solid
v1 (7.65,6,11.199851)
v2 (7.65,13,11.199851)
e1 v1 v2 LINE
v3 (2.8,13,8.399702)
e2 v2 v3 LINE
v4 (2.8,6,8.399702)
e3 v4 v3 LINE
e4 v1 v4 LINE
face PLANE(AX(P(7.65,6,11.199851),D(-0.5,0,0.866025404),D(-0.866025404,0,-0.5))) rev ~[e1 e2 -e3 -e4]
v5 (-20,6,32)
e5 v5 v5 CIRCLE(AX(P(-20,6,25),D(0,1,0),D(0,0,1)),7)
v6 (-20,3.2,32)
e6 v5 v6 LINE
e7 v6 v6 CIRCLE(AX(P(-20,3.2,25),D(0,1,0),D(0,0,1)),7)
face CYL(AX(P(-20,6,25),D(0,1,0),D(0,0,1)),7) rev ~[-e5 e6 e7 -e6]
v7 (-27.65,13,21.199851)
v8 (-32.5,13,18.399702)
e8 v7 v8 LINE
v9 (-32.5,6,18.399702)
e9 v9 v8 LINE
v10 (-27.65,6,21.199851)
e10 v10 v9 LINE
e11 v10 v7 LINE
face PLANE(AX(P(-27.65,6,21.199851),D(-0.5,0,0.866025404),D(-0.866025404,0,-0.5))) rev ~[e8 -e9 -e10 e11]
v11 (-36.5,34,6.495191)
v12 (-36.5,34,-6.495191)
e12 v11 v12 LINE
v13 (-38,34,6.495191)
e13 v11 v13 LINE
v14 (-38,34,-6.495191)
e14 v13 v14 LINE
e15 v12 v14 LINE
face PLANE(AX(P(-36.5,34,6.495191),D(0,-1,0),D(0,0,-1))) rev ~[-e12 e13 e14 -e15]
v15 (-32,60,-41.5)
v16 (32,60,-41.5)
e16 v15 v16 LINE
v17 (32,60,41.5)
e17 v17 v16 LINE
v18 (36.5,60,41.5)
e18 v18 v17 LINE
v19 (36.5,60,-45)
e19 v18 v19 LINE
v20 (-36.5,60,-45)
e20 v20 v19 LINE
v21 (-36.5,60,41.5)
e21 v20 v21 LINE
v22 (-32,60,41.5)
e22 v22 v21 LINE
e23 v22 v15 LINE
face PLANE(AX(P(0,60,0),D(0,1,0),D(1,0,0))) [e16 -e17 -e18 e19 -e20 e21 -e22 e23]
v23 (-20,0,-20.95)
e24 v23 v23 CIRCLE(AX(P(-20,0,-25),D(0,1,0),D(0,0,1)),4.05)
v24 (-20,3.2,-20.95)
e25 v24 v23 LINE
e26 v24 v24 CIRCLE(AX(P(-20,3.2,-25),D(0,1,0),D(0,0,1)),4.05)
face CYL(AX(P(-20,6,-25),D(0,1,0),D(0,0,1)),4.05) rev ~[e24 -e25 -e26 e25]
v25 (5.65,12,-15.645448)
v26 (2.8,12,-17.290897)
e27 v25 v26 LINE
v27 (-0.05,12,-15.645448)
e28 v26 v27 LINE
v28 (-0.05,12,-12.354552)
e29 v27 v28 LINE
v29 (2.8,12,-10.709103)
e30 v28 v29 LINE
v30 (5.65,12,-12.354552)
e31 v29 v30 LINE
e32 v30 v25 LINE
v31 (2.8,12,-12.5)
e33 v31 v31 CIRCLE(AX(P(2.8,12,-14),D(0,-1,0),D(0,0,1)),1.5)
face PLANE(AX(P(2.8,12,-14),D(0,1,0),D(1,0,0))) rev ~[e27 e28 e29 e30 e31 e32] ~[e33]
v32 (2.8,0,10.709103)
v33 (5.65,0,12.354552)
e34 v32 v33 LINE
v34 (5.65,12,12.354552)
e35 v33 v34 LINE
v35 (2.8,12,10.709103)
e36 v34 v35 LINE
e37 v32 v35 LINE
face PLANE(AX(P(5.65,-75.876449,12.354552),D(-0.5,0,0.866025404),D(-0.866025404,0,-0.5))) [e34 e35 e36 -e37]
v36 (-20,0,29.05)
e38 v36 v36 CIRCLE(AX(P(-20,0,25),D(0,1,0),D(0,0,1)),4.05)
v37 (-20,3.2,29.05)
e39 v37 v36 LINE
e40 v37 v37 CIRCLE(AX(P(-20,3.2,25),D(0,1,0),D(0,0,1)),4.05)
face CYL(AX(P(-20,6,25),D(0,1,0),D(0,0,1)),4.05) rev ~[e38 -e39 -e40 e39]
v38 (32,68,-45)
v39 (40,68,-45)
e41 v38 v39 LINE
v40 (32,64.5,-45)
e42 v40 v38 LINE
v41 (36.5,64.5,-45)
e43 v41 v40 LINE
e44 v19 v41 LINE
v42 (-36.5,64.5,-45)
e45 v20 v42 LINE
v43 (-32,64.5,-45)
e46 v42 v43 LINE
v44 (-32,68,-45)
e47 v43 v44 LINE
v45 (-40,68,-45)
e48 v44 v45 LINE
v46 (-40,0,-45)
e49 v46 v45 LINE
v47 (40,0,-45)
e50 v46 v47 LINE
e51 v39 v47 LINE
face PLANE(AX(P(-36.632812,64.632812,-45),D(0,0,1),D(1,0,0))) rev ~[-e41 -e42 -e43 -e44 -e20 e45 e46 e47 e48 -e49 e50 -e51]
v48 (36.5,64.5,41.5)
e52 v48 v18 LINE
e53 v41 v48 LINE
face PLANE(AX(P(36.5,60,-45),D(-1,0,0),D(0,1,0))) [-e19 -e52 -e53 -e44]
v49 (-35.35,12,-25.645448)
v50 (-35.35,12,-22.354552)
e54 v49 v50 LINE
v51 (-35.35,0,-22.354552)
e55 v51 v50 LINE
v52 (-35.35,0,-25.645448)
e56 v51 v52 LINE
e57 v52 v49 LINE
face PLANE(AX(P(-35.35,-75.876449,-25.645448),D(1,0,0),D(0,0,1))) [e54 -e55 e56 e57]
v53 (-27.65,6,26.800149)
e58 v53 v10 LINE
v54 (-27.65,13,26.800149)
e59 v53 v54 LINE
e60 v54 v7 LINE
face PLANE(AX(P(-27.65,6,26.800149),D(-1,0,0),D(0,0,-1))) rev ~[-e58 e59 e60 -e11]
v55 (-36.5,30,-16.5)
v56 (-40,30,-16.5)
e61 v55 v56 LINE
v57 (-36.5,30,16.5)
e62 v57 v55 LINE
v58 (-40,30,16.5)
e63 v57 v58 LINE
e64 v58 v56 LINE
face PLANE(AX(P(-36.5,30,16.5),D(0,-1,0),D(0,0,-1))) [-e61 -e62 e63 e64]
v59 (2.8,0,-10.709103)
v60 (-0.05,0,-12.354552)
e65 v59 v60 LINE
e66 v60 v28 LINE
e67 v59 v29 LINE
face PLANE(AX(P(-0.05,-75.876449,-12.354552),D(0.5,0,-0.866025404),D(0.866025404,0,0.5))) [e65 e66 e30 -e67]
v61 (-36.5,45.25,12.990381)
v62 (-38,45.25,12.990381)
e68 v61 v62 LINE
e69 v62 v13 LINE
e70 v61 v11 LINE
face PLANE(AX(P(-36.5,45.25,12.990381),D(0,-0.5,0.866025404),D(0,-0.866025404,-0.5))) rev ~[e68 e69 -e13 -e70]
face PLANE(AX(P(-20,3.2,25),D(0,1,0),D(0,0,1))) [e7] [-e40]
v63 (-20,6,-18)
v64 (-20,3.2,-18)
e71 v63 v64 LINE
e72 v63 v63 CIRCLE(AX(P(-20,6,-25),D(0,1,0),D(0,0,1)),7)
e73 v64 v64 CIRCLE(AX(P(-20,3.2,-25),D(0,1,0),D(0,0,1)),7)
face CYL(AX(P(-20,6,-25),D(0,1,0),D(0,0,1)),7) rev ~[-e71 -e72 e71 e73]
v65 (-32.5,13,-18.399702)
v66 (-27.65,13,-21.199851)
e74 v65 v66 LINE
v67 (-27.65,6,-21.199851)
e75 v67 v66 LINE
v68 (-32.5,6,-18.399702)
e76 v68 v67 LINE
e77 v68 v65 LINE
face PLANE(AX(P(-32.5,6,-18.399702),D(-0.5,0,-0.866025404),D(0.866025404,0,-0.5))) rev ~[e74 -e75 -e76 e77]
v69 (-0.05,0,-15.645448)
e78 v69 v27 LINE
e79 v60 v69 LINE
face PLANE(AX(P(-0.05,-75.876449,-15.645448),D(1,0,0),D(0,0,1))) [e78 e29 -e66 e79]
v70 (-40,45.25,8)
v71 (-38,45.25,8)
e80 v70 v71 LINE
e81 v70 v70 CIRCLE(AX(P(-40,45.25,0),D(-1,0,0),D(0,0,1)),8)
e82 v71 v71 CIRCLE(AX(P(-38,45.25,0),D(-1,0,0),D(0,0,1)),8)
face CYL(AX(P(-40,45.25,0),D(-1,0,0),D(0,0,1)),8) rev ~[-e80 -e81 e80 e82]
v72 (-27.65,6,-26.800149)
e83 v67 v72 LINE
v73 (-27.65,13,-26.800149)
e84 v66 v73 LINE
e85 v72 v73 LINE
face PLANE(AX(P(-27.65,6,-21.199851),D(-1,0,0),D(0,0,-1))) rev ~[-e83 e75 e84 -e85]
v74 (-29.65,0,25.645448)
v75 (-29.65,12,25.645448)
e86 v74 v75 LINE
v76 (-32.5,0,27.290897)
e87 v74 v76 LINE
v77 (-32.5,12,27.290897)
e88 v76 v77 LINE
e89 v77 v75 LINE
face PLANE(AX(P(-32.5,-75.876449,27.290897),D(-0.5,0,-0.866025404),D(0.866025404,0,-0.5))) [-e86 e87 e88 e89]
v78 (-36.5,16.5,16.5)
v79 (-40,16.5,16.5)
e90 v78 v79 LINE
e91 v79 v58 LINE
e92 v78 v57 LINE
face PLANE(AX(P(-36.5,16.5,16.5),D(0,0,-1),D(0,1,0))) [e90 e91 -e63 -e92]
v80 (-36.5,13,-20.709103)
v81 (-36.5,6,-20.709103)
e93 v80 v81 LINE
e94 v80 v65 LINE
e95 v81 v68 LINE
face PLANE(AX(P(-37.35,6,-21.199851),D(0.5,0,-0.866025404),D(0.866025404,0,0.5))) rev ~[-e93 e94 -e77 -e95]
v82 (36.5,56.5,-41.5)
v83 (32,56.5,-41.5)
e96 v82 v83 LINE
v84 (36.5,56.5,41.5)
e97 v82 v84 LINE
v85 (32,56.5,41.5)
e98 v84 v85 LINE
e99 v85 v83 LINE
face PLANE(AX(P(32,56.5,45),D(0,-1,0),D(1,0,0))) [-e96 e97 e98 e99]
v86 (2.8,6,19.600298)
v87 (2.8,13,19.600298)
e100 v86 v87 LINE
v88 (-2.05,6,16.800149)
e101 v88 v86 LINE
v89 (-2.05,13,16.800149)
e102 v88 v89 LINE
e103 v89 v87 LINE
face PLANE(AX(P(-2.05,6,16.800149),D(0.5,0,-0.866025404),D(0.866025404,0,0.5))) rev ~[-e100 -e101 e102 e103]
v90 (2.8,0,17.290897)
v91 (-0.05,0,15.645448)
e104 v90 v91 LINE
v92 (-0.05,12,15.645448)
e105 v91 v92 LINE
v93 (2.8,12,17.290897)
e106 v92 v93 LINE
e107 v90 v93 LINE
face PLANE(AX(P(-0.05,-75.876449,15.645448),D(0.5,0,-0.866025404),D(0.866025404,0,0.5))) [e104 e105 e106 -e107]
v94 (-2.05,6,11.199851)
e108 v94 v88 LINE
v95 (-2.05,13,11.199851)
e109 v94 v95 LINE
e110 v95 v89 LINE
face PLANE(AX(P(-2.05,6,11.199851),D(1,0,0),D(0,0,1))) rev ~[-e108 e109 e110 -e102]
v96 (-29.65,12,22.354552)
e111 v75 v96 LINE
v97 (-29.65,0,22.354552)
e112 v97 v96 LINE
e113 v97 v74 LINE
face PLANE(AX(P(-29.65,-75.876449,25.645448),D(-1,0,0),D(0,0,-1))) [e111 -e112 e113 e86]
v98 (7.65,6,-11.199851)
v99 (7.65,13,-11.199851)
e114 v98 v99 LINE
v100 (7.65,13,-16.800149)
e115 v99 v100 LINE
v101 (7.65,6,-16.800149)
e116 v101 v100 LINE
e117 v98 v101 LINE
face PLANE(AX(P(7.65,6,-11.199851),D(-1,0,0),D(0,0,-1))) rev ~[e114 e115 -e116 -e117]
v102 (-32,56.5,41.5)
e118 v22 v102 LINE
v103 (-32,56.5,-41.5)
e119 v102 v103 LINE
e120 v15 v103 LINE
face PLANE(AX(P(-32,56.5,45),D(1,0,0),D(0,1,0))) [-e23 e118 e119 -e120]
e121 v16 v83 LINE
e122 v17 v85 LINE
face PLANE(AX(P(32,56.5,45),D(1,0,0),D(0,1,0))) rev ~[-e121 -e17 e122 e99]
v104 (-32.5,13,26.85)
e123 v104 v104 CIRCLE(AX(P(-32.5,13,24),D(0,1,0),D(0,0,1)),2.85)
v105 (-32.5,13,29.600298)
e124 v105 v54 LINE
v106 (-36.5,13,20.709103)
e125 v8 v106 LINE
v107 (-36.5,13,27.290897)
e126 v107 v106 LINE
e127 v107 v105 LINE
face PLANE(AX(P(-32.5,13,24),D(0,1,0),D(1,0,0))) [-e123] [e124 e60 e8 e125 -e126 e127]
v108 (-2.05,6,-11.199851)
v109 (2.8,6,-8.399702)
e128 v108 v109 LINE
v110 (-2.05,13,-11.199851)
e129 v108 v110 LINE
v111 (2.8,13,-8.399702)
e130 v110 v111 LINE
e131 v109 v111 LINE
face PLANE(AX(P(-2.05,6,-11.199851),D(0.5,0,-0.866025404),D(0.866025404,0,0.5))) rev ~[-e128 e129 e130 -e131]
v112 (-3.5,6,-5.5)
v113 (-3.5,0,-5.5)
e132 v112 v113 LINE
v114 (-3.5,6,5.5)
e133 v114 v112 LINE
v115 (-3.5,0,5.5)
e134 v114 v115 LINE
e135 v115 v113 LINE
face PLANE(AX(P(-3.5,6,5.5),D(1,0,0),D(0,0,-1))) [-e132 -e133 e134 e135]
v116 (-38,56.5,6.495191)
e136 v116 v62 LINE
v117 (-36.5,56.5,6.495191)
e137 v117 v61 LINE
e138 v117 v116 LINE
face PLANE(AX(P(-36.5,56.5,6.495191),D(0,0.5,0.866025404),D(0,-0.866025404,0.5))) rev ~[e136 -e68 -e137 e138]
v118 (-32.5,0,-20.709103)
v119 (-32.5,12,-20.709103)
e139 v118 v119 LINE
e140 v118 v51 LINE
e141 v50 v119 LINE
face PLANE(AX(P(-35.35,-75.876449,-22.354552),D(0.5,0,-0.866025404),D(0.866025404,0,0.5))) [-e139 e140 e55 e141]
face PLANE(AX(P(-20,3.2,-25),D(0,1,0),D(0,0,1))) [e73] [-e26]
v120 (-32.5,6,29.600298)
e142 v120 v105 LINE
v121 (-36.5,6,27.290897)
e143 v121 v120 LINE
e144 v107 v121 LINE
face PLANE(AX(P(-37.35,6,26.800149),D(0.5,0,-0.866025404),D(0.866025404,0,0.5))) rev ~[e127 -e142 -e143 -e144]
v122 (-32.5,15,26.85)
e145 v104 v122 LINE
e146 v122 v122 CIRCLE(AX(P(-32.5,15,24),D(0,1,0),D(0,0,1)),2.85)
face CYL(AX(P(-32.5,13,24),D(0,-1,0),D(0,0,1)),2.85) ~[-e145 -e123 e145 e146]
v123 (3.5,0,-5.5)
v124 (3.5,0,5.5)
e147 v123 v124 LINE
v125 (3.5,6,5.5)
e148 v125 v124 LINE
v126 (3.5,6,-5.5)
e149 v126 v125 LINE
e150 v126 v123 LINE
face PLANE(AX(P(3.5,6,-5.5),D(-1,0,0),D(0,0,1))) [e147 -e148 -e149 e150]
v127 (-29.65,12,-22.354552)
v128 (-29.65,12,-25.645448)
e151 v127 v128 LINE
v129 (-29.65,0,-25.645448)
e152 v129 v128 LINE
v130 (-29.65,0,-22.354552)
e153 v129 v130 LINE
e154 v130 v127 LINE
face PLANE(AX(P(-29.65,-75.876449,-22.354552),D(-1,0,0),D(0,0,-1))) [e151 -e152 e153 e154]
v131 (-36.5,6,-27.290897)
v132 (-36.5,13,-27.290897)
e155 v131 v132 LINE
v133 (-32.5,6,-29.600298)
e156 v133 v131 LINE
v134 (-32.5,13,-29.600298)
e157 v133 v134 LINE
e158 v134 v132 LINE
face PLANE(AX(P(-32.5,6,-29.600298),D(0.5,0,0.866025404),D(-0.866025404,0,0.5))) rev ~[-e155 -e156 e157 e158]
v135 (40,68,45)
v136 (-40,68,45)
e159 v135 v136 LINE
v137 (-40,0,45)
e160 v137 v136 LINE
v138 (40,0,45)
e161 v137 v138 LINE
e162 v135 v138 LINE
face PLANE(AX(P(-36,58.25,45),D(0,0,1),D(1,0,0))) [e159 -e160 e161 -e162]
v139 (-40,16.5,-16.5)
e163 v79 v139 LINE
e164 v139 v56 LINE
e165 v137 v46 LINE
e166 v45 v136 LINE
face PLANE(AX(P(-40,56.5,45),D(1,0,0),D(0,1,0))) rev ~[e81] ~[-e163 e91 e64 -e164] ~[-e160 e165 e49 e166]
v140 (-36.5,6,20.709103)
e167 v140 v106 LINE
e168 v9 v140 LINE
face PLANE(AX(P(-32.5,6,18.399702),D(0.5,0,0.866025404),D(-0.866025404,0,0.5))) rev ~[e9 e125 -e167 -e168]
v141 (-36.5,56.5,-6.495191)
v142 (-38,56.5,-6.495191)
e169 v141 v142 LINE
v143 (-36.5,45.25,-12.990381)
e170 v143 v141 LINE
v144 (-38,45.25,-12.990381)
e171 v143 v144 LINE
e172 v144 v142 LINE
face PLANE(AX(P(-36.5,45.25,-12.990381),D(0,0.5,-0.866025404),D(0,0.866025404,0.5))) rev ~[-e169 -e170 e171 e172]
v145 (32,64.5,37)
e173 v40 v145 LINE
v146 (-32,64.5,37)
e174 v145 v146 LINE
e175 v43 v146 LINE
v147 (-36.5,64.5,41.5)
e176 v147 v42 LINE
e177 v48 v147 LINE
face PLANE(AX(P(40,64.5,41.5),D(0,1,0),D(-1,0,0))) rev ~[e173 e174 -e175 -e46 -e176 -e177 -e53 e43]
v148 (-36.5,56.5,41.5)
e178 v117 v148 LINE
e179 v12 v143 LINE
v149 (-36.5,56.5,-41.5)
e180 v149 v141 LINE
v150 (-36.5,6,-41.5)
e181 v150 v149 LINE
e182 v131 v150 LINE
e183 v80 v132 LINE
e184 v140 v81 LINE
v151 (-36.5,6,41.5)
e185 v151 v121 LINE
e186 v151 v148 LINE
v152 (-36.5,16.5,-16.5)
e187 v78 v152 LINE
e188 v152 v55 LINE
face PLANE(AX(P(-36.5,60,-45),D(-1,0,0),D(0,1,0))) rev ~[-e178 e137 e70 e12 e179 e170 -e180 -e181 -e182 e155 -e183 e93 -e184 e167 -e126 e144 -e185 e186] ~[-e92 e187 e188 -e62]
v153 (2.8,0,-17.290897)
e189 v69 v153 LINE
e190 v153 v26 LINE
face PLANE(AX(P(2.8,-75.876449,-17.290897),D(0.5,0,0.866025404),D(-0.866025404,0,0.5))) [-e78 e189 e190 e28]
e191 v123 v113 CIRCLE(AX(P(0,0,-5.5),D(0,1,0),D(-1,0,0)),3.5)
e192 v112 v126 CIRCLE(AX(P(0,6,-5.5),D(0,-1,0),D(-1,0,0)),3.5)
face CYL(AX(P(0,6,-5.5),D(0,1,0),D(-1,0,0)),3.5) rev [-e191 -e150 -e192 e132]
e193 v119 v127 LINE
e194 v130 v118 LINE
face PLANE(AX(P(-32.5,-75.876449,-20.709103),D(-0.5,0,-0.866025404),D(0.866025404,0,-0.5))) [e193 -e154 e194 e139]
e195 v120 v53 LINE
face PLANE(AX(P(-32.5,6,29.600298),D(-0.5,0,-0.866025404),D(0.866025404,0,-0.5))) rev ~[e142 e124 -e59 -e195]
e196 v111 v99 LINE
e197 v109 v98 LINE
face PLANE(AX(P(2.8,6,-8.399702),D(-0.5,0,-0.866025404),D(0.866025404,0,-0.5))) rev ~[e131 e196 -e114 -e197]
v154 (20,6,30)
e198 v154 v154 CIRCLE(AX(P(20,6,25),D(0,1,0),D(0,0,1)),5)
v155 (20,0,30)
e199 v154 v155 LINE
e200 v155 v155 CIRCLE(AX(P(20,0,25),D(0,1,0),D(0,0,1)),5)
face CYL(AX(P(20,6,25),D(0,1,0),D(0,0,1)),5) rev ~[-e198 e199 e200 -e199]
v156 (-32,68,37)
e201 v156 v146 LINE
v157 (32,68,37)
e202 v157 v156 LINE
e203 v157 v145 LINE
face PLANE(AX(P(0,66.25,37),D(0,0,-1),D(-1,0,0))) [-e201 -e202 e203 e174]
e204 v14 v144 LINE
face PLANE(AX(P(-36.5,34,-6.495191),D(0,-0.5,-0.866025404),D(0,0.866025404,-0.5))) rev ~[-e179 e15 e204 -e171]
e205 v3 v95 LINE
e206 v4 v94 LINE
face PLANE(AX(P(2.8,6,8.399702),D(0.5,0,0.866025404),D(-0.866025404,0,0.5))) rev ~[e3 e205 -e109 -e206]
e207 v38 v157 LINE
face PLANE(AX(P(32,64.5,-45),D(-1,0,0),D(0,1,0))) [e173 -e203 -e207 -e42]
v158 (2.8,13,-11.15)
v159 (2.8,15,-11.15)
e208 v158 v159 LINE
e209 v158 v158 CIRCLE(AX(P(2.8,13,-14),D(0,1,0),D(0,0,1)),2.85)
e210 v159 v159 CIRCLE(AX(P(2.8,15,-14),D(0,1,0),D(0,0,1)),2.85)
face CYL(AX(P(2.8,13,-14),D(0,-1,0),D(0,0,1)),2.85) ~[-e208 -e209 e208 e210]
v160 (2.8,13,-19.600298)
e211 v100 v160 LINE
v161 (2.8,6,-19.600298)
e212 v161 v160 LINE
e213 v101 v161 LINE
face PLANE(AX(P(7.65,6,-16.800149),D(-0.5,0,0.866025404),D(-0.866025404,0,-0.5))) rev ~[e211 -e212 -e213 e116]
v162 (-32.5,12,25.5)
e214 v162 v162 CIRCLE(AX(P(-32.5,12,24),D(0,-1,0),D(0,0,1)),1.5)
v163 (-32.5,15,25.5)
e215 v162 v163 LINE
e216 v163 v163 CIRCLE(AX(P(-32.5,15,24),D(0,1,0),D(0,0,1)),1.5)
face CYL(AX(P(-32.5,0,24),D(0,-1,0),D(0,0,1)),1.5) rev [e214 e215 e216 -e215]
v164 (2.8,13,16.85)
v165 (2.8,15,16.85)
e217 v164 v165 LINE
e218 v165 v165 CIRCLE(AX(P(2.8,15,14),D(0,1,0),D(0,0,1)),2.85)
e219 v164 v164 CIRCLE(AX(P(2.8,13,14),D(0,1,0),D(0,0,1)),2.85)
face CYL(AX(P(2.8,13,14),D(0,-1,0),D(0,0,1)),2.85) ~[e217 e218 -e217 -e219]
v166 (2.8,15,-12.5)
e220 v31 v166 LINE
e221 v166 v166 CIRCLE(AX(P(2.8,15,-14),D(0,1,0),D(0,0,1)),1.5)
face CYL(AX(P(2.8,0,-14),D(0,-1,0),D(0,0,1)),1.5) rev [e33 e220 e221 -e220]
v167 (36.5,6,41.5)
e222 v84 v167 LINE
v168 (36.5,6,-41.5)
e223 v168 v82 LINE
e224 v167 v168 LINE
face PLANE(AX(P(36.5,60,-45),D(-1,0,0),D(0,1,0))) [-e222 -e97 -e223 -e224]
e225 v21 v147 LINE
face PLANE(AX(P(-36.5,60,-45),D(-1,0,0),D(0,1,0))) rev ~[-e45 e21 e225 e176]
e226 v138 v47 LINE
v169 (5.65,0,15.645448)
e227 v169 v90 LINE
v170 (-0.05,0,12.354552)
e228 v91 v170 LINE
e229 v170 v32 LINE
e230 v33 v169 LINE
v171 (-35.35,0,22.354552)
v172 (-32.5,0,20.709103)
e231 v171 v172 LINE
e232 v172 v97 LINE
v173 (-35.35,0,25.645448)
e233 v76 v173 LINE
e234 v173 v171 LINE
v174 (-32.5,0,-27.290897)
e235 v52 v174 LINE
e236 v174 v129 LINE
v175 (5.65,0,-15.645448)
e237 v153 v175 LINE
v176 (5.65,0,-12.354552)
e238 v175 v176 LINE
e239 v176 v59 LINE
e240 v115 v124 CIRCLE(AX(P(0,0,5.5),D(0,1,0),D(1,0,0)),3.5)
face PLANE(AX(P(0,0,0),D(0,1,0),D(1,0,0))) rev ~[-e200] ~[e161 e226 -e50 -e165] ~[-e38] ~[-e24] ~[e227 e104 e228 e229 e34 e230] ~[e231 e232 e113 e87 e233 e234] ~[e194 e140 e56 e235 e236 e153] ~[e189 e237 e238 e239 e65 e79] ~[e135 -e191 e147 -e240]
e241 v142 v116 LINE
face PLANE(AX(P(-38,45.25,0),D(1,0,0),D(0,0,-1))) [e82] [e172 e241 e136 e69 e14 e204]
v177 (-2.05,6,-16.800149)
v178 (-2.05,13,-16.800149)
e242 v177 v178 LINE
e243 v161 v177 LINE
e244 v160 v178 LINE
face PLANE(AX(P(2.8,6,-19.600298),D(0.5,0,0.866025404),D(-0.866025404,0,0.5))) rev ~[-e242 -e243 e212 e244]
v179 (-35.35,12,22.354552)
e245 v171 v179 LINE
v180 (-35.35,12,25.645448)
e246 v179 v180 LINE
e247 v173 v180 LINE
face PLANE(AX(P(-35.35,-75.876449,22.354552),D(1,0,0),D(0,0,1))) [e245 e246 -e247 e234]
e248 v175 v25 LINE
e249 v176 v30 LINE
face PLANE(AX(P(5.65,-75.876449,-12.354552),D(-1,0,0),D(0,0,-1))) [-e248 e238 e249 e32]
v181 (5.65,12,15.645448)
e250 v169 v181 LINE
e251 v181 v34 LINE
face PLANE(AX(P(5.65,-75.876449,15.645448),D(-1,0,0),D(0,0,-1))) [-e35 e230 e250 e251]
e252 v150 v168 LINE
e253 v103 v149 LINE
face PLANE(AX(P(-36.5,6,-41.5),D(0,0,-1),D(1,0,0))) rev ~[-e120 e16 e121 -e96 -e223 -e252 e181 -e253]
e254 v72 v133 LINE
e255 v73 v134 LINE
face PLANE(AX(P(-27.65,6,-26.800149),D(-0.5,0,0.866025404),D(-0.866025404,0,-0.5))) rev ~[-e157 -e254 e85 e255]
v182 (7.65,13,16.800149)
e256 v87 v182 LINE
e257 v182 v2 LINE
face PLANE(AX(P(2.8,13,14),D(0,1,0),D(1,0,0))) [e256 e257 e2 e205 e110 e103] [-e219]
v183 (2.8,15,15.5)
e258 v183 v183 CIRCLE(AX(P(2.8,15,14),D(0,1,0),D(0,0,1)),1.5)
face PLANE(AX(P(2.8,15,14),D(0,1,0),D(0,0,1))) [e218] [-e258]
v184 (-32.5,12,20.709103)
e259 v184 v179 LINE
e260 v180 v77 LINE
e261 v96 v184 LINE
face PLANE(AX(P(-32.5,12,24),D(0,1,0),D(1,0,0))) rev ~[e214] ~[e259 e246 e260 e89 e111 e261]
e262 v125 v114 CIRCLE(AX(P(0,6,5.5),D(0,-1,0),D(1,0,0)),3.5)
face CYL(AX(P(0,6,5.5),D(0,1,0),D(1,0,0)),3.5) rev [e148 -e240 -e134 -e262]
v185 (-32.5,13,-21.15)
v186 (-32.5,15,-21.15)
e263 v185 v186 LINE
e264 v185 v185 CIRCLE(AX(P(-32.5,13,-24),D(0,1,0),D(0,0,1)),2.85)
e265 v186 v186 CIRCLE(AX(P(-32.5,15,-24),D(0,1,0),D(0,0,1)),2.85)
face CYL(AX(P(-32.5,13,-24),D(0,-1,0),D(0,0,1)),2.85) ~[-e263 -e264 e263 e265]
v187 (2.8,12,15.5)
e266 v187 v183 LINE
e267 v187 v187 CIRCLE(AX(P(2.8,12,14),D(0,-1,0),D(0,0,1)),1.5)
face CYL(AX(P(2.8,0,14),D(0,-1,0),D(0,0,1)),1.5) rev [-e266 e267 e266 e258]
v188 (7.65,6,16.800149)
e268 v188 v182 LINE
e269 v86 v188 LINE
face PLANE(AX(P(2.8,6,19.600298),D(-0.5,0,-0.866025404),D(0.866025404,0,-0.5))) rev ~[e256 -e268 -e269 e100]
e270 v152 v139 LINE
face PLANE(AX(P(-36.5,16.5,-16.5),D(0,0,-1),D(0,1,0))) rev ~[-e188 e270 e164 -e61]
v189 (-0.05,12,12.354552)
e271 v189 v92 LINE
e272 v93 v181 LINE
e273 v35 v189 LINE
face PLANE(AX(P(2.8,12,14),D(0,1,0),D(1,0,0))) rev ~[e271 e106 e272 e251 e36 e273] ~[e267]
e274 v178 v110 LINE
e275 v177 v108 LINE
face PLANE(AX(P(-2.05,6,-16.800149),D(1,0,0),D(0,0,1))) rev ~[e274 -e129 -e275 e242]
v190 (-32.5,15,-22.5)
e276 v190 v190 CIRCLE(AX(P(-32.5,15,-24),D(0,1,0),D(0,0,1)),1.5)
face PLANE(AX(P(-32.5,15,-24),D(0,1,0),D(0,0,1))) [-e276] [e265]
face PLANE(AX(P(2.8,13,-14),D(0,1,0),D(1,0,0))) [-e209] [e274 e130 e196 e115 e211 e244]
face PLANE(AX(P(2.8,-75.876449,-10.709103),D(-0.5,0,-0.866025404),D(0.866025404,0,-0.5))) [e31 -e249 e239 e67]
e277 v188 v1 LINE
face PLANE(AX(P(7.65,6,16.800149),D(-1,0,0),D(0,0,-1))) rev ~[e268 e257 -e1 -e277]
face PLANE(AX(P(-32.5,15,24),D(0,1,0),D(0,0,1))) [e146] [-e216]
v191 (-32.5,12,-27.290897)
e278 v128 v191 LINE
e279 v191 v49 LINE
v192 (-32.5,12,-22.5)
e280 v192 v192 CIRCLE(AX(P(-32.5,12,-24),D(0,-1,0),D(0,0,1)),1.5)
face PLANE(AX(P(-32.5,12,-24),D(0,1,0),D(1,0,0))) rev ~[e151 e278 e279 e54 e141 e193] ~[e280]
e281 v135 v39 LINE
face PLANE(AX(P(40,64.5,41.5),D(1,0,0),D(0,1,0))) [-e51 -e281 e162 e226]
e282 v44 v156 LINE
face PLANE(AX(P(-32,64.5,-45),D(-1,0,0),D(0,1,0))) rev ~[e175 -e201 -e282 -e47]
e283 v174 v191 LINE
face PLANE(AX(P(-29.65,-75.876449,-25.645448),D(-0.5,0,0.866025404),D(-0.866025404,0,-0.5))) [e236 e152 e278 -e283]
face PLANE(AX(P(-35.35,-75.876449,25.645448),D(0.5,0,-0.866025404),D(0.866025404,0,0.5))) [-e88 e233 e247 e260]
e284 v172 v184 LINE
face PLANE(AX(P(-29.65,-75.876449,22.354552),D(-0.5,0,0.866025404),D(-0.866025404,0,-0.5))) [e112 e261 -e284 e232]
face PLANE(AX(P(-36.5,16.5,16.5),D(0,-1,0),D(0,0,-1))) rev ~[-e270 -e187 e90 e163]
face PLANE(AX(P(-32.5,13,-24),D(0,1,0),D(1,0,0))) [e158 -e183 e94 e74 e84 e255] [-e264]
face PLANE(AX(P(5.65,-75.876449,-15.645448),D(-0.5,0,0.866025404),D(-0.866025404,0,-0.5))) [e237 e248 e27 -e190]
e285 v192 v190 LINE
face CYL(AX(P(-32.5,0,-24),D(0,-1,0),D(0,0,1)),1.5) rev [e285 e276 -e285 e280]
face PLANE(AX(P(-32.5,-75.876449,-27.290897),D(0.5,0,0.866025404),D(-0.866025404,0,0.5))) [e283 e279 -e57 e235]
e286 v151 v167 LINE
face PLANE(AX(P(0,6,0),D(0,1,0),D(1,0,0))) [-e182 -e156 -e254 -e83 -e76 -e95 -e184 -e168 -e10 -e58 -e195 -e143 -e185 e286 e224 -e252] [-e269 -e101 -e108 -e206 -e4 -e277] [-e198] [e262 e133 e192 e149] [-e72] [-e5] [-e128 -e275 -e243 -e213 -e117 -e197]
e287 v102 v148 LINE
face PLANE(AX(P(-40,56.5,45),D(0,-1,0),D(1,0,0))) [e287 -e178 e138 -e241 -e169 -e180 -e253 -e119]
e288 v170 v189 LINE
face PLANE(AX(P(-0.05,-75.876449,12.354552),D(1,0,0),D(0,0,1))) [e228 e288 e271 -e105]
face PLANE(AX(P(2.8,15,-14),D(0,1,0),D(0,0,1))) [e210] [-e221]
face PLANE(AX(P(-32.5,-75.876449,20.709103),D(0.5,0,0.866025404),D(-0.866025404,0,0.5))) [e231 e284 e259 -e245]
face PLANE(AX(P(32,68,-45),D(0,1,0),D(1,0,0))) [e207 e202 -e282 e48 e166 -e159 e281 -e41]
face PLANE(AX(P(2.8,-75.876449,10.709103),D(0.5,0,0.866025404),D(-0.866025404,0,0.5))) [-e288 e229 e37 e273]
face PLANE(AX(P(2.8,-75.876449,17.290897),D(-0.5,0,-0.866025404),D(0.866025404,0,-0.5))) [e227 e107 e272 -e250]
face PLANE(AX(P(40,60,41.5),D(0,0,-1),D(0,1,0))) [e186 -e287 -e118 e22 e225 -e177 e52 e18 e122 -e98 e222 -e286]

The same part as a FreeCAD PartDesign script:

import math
import FreeCAD as App
import Part
import Sketcher
Q = App.Units.Quantity


def add_polygon(sketch, points):
    """Adds a closed chain of lines whose ends are joined by coincident constraints."""
    first, n = sketch.GeometryCount, len(points)
    for a, b in zip(points, points[1:] + points[:1]):
        sketch.addGeometry(Part.LineSegment(App.Vector(*a, 0), App.Vector(*b, 0)), False)
    for i in range(n):
        sketch.addConstraint(Sketcher.Constraint("Coincident", first + i, 2, first + (i + 1) % n, 1))

doc = App.newDocument("Part")
body = doc.addObject("PartDesign::Body", "Body")

# Sketch on XZ plane
sketch1 = body.newObject("Sketcher::SketchObject", "Sketch")
sketch1.AttachmentSupport = (doc.getObject("XZ_Plane"), [""])
sketch1.MapMode = "FlatFace"
add_polygon(sketch1, [(-40, -45), (-40, 45), (40, 45), (40, -45)])  # lines 0-3
sketch1.addConstraint([
    Sketcher.Constraint("Vertical", 0),
    Sketcher.Constraint("Horizontal", 1),
    Sketcher.Constraint("Vertical", 2),
    Sketcher.Constraint("Horizontal", 3),
    Sketcher.Constraint("Symmetric", 0, 2, 2, 2, -1, 1),
    Sketcher.Constraint("DistanceX", 1, 1, 1, 2, Q("80 mm")),
    Sketcher.Constraint("DistanceY", 0, 1, 0, 2, Q("90 mm")),
])
pad1 = body.newObject("PartDesign::Pad", "Pad")
pad1.Profile = sketch1
pad1.Length = 6
pad1.Reversed = True

# Sketch on XZ plane
sketch2 = body.newObject("Sketcher::SketchObject", "Sketch001")
sketch2.AttachmentSupport = (doc.getObject("XZ_Plane"), [""])
sketch2.MapMode = "FlatFace"
sketch2.AttachmentOffset = App.Placement(App.Vector(0, 0, -6), App.Rotation())
add_polygon(sketch2, [(-40, -45), (-40, 45), (40, 45), (40, -45)])  # lines 0-3
add_polygon(sketch2, [(36.5, 41.5), (-36.5, 41.5), (-36.5, -41.5), (36.5, -41.5)])  # lines 4-7
sketch2.addConstraint([
    Sketcher.Constraint("Vertical", 0),
    Sketcher.Constraint("Horizontal", 1),
    Sketcher.Constraint("Vertical", 2),
    Sketcher.Constraint("Horizontal", 3),
    Sketcher.Constraint("Horizontal", 4),
    Sketcher.Constraint("Vertical", 5),
    Sketcher.Constraint("Horizontal", 6),
    Sketcher.Constraint("Vertical", 7),
    Sketcher.Constraint("Symmetric", 0, 2, 2, 2, -1, 1),
    Sketcher.Constraint("Symmetric", 4, 2, 6, 2, -1, 1),
    Sketcher.Constraint("DistanceX", 1, 1, 1, 2, Q("80 mm")),
    Sketcher.Constraint("DistanceX", 4, 2, 4, 1, Q("73 mm")),
    Sketcher.Constraint("DistanceY", 0, 1, 0, 2, Q("90 mm")),
    Sketcher.Constraint("DistanceY", 5, 2, 5, 1, Q("83 mm")),
])
pad2 = body.newObject("PartDesign::Pad", "Pad001")
pad2.Profile = sketch2
pad2.Length = 54
pad2.Reversed = True

# Sketch on XZ plane
sketch3 = body.newObject("Sketcher::SketchObject", "Sketch002")
sketch3.AttachmentSupport = (doc.getObject("XZ_Plane"), [""])
sketch3.MapMode = "FlatFace"
sketch3.AttachmentOffset = App.Placement(App.Vector(0, 0, -6), App.Rotation())
sketch3.addGeometry([
    Part.Circle(App.Vector(-20, -25, 0), App.Vector(0, 0, 1), 4.05),
    Part.Circle(App.Vector(-20, 25, 0), App.Vector(0, 0, 1), 4.05),
    Part.Circle(App.Vector(20, 25, 0), App.Vector(0, 0, 1), 5),
], False)
sketch3.addConstraint([
    Sketcher.Constraint("Equal", 0, 1),
    Sketcher.Constraint("Symmetric", 0, 3, 2, 3, -1, 1),
    Sketcher.Constraint("Symmetric", 1, 3, 2, 3, -2),
    Sketcher.Constraint("Diameter", 2, Q("10 mm")),
    Sketcher.Constraint("Diameter", 0, Q("8.1 mm")),
    Sketcher.Constraint("DistanceX", 0, 3, -1, 1, Q("20 mm")),
    Sketcher.Constraint("DistanceY", 0, 3, -1, 1, Q("25 mm")),
])
pocket1 = body.newObject("PartDesign::Pocket", "Pocket")
pocket1.Profile = sketch3
pocket1.Length = 40
pocket1.Reversed = True

# Sketch on XZ plane
sketch4 = body.newObject("Sketcher::SketchObject", "Sketch003")
sketch4.AttachmentSupport = (doc.getObject("XZ_Plane"), [""])
sketch4.MapMode = "FlatFace"
sketch4.AttachmentOffset = App.Placement(App.Vector(0, 0, -6), App.Rotation())
sketch4.addGeometry([
    Part.Circle(App.Vector(-20, -25, 0), App.Vector(0, 0, 1), 7),
    Part.Circle(App.Vector(-20, 25, 0), App.Vector(0, 0, 1), 7),
], False)
sketch4.addConstraint([
    Sketcher.Constraint("Equal", 0, 1),
    Sketcher.Constraint("Symmetric", 0, 3, 1, 3, -1),
    Sketcher.Constraint("Diameter", 0, Q("14 mm")),
    Sketcher.Constraint("DistanceX", 0, 3, -1, 1, Q("20 mm")),
    Sketcher.Constraint("DistanceY", 0, 3, -1, 1, Q("25 mm")),
])
pocket2 = body.newObject("PartDesign::Pocket", "Pocket001")
pocket2.Profile = sketch4
pocket2.Length = 2.8
pocket2.Reversed = True

# Sketch on XZ plane
sketch5 = body.newObject("Sketcher::SketchObject", "Sketch004")
sketch5.AttachmentSupport = (doc.getObject("XZ_Plane"), [""])
sketch5.MapMode = "FlatFace"
sketch5.AttachmentOffset = App.Placement(App.Vector(0, 0, -6), App.Rotation())
add_polygon(sketch5, [(-32.5, -29.600298), (-37.35, -26.800149), (-37.35, -21.199851), (-32.5, -18.399702), (-27.65, -21.199851), (-27.65, -26.800149)])  # lines 0-5
add_polygon(sketch5, [(2.8, -19.600298), (-2.05, -16.800149), (-2.05, -11.199851), (2.8, -8.399702), (7.65, -11.199851), (7.65, -16.800149)])  # lines 6-11
add_polygon(sketch5, [(2.8, 8.399702), (-2.05, 11.199851), (-2.05, 16.800149), (2.8, 19.600298), (7.65, 16.800149), (7.65, 11.199851)])  # lines 12-17
add_polygon(sketch5, [(-27.65, 21.199851), (-32.5, 18.399702), (-37.35, 21.199851), (-37.35, 26.800149), (-32.5, 29.600298), (-27.65, 26.800149)])  # lines 18-23
sketch5.addConstraint([
    Sketcher.Constraint("Vertical", 1),
    Sketcher.Constraint("Vertical", 4),
    Sketcher.Constraint("Vertical", 7),
    Sketcher.Constraint("Vertical", 10),
    Sketcher.Constraint("Vertical", 13),
    Sketcher.Constraint("Vertical", 16),
    Sketcher.Constraint("Vertical", 20),
    Sketcher.Constraint("Vertical", 23),
    Sketcher.Constraint("Symmetric", 7, 2, 12, 2, -1),
    Sketcher.Constraint("Symmetric", 11, 2, 14, 2, -1),
    Sketcher.Constraint("Symmetric", 10, 2, 15, 2, -1),
    Sketcher.Constraint("Symmetric", 8, 2, 17, 2, -1),
    Sketcher.Constraint("Symmetric", 2, 2, 18, 2, -1),
    Sketcher.Constraint("Symmetric", 1, 2, 19, 2, -1),
    Sketcher.Constraint("Symmetric", 5, 2, 21, 2, -1),
    Sketcher.Constraint("Symmetric", 4, 2, 22, 2, -1),
    Sketcher.Constraint("Parallel", 0, 3),
    Sketcher.Constraint("Parallel", 2, 5),
    Sketcher.Constraint("Parallel", 3, 6),
    Sketcher.Constraint("Parallel", 5, 8),
    Sketcher.Constraint("Parallel", 6, 9),
    Sketcher.Constraint("Parallel", 8, 11),
    Sketcher.Constraint("Parallel", 9, 12),
    Sketcher.Constraint("Parallel", 11, 14),
    Sketcher.Constraint("Parallel", 14, 17),
    Sketcher.Constraint("Parallel", 17, 18),
    Sketcher.Constraint("Parallel", 18, 21),
    Sketcher.Constraint("Horizontal", 1, 2, 3, 2),
    Sketcher.Constraint("Horizontal", 0, 2, 4, 2),
    Sketcher.Constraint("Horizontal", 7, 2, 9, 2),
    Sketcher.Constraint("Horizontal", 6, 2, 10, 2),
    Sketcher.Constraint("Equal", 4, 7),
    Sketcher.Constraint("Equal", 5, 6),
    Sketcher.Constraint("Angle", 0, Q("150 deg")),
    Sketcher.Constraint("DistanceY", 4, 2, 6, 2, Q("10 mm")),
    Sketcher.Constraint("DistanceY", 6, 2, 12, 2, Q("28 mm")),
    Sketcher.Constraint("DistanceX", 2, 2, -1, 1, Q("32.5 mm")),
    Sketcher.Constraint("DistanceX", -1, 1, 8, 2, Q("2.8 mm")),
    Sketcher.Constraint("DistanceX", 1, 2, 3, 2, Q("9.7 mm")),
    Sketcher.Constraint("DistanceY", 1, 1, 1, 2, Q("5.600298 mm")),
])
pad3 = body.newObject("PartDesign::Pad", "Pad002")
pad3.Profile = sketch5
pad3.Length = 7
pad3.Reversed = True

# Sketch on XZ plane
sketch6 = body.newObject("Sketcher::SketchObject", "Sketch005")
sketch6.AttachmentSupport = (doc.getObject("XZ_Plane"), [""])
sketch6.MapMode = "FlatFace"
sketch6.AttachmentOffset = App.Placement(App.Vector(0, 0, -13), App.Rotation())
sketch6.addGeometry([
    Part.Circle(App.Vector(-32.5, -24, 0), App.Vector(0, 0, 1), 2.85),
    Part.Circle(App.Vector(2.8, -14, 0), App.Vector(0, 0, 1), 2.85),
    Part.Circle(App.Vector(2.8, 14, 0), App.Vector(0, 0, 1), 2.85),
    Part.Circle(App.Vector(-32.5, 24, 0), App.Vector(0, 0, 1), 2.85),
], False)
sketch6.addConstraint([
    Sketcher.Constraint("Equal", 0, 1),
    Sketcher.Constraint("Equal", 1, 2),
    Sketcher.Constraint("Equal", 2, 3),
    Sketcher.Constraint("Symmetric", 1, 3, 2, 3, -1),
    Sketcher.Constraint("Symmetric", 0, 3, 3, 3, -1),
    Sketcher.Constraint("Diameter", 0, Q("5.7 mm")),
    Sketcher.Constraint("DistanceY", 0, 3, -1, 1, Q("24 mm")),
    Sketcher.Constraint("DistanceY", 1, 3, -1, 1, Q("14 mm")),
    Sketcher.Constraint("DistanceX", 0, 3, -1, 1, Q("32.5 mm")),
    Sketcher.Constraint("DistanceX", -1, 1, 1, 3, Q("2.8 mm")),
])
pad4 = body.newObject("PartDesign::Pad", "Pad003")
pad4.Profile = sketch6
pad4.Length = 2
pad4.Reversed = True

# Sketch on XZ plane
sketch7 = body.newObject("Sketcher::SketchObject", "Sketch006")
sketch7.AttachmentSupport = (doc.getObject("XZ_Plane"), [""])
sketch7.MapMode = "FlatFace"
sketch7.AttachmentOffset = App.Placement(App.Vector(0, 0, -6), App.Rotation())
sketch7.addGeometry([
    Part.Circle(App.Vector(-32.5, -24, 0), App.Vector(0, 0, 1), 1.5),
    Part.Circle(App.Vector(-32.5, 24, 0), App.Vector(0, 0, 1), 1.5),
    Part.Circle(App.Vector(2.8, -14, 0), App.Vector(0, 0, 1), 1.5),
    Part.Circle(App.Vector(2.8, 14, 0), App.Vector(0, 0, 1), 1.5),
], False)
sketch7.addConstraint([
    Sketcher.Constraint("Equal", 0, 1),
    Sketcher.Constraint("Equal", 1, 2),
    Sketcher.Constraint("Equal", 2, 3),
    Sketcher.Constraint("Symmetric", 0, 3, 1, 3, -1),
    Sketcher.Constraint("Symmetric", 2, 3, 3, 3, -1),
    Sketcher.Constraint("Diameter", 0, Q("3 mm")),
    Sketcher.Constraint("DistanceY", 0, 3, -1, 1, Q("24 mm")),
    Sketcher.Constraint("DistanceY", 2, 3, -1, 1, Q("14 mm")),
    Sketcher.Constraint("DistanceX", 0, 3, -1, 1, Q("32.5 mm")),
    Sketcher.Constraint("DistanceX", -1, 1, 2, 3, Q("2.8 mm")),
])
pocket3 = body.newObject("PartDesign::Pocket", "Pocket002")
pocket3.Profile = sketch7
pocket3.Type = "ThroughAll"
pocket3.Midplane = True

# Sketch on XZ plane
sketch8 = body.newObject("Sketcher::SketchObject", "Sketch007")
sketch8.AttachmentSupport = (doc.getObject("XZ_Plane"), [""])
sketch8.MapMode = "FlatFace"
sketch8.AttachmentOffset = App.Placement(App.Vector(0, 0, -6), App.Rotation())
add_polygon(sketch8, [(-29.65, -25.645448), (-32.5, -27.290897), (-35.35, -25.645448), (-35.35, -22.354552), (-32.5, -20.709103), (-29.65, -22.354552)])  # lines 0-5
add_polygon(sketch8, [(-29.65, 22.354552), (-32.5, 20.709103), (-35.35, 22.354552), (-35.35, 25.645448), (-32.5, 27.290897), (-29.65, 25.645448)])  # lines 6-11
add_polygon(sketch8, [(5.65, 12.354552), (2.8, 10.709103), (-0.05, 12.354552), (-0.05, 15.645448), (2.8, 17.290897), (5.65, 15.645448)])  # lines 12-17
add_polygon(sketch8, [(5.65, -15.645448), (2.8, -17.290897), (-0.05, -15.645448), (-0.05, -12.354552), (2.8, -10.709103), (5.65, -12.354552)])  # lines 18-23
sketch8.addConstraint([
    Sketcher.Constraint("Vertical", 2),
    Sketcher.Constraint("Vertical", 5),
    Sketcher.Constraint("Vertical", 8),
    Sketcher.Constraint("Vertical", 11),
    Sketcher.Constraint("Vertical", 14),
    Sketcher.Constraint("Vertical", 17),
    Sketcher.Constraint("Vertical", 20),
    Sketcher.Constraint("Vertical", 23),
    Sketcher.Constraint("Symmetric", 3, 2, 6, 2, -1),
    Sketcher.Constraint("Symmetric", 2, 2, 7, 2, -1),
    Sketcher.Constraint("Symmetric", 0, 2, 9, 2, -1),
    Sketcher.Constraint("Symmetric", 5, 2, 10, 2, -1),
    Sketcher.Constraint("Symmetric", 15, 2, 18, 2, -1),
    Sketcher.Constraint("Symmetric", 14, 2, 19, 2, -1),
    Sketcher.Constraint("Symmetric", 12, 2, 21, 2, -1),
    Sketcher.Constraint("Symmetric", 17, 2, 22, 2, -1),
    Sketcher.Constraint("Parallel", 0, 3),
    Sketcher.Constraint("Parallel", 1, 4),
    Sketcher.Constraint("Parallel", 3, 6),
    Sketcher.Constraint("Parallel", 4, 7),
    Sketcher.Constraint("Parallel", 6, 9),
    Sketcher.Constraint("Parallel", 9, 12),
    Sketcher.Constraint("Parallel", 10, 13),
    Sketcher.Constraint("Parallel", 12, 15),
    Sketcher.Constraint("Parallel", 13, 16),
    Sketcher.Constraint("Parallel", 15, 18),
    Sketcher.Constraint("Parallel", 18, 21),
    Sketcher.Constraint("Horizontal", 2, 2, 4, 2),
    Sketcher.Constraint("Horizontal", 1, 2, 5, 2),
    Sketcher.Constraint("Horizontal", 14, 2, 16, 2),
    Sketcher.Constraint("Horizontal", 13, 2, 17, 2),
    Sketcher.Constraint("Equal", 11, 14),
    Sketcher.Constraint("Equal", 10, 12),
    Sketcher.Constraint("Angle", 0, Q("-150 deg")),
    Sketcher.Constraint("DistanceY", 1, 2, 7, 2, Q("48 mm")),
    Sketcher.Constraint("DistanceY", 12, 2, 6, 2, Q("10 mm")),
    Sketcher.Constraint("DistanceX", 0, 2, -1, 1, Q("32.5 mm")),
    Sketcher.Constraint("DistanceX", -1, 1, 12, 2, Q("2.8 mm")),
    Sketcher.Constraint("DistanceX", 2, 2, 4, 2, Q("5.7 mm")),
    Sketcher.Constraint("DistanceY", 2, 1, 2, 2, Q("3.290897 mm")),
])
pocket4 = body.newObject("PartDesign::Pocket", "Pocket003")
pocket4.Profile = sketch8
pocket4.Type = "TwoLengths"
pocket4.Length = 6
pocket4.Length2 = 81.876449

# Sketch on YZ plane
sketch9 = body.newObject("Sketcher::SketchObject", "Sketch008")
sketch9.AttachmentSupport = (doc.getObject("YZ_Plane"), [""])
sketch9.MapMode = "FlatFace"
sketch9.AttachmentOffset = App.Placement(App.Vector(0, 0, -36.5), App.Rotation())
add_polygon(sketch9, [(30, 16.5), (16.5, 16.5), (16.5, -16.5), (30, -16.5)])  # lines 0-3
sketch9.addConstraint([
    Sketcher.Constraint("Horizontal", 0),
    Sketcher.Constraint("Vertical", 1),
    Sketcher.Constraint("Horizontal", 2),
    Sketcher.Constraint("Vertical", 3),
    Sketcher.Constraint("DistanceY", 1, 2, 1, 1, Q("33 mm")),
    Sketcher.Constraint("DistanceX", 0, 2, 0, 1, Q("13.5 mm")),
    Sketcher.Constraint("DistanceX", -1, 1, 2, 2, Q("30 mm")),
    Sketcher.Constraint("DistanceY", -1, 1, 0, 2, Q("16.5 mm")),
])
pocket5 = body.newObject("PartDesign::Pocket", "Pocket004")
pocket5.Profile = sketch9
pocket5.Length = 3.5

# Sketch on YZ plane
sketch10 = body.newObject("Sketcher::SketchObject", "Sketch009")
sketch10.AttachmentSupport = (doc.getObject("YZ_Plane"), [""])
sketch10.MapMode = "FlatFace"
sketch10.AttachmentOffset = App.Placement(App.Vector(0, 0, -40), App.Rotation())
sketch10.addGeometry(Part.Circle(App.Vector(45.25, 0, 0), App.Vector(0, 0, 1), 8), False)
sketch10.addConstraint([
    Sketcher.Constraint("PointOnObject", 0, 3, -1),
    Sketcher.Constraint("Diameter", 0, Q("16 mm")),
    Sketcher.Constraint("DistanceX", -1, 1, 0, 3, Q("45.25 mm")),
])
pocket6 = body.newObject("PartDesign::Pocket", "Pocket005")
pocket6.Profile = sketch10
pocket6.Length = 2
pocket6.Reversed = True

# Sketch on YZ plane
sketch11 = body.newObject("Sketcher::SketchObject", "Sketch010")
sketch11.AttachmentSupport = (doc.getObject("YZ_Plane"), [""])
sketch11.MapMode = "FlatFace"
sketch11.AttachmentOffset = App.Placement(App.Vector(0, 0, -36.5), App.Rotation())
add_polygon(sketch11, [(56.5, 6.495191), (45.25, 12.990381), (34, 6.495191), (34, -6.495191), (45.25, -12.990381), (56.5, -6.495191)])  # lines 0-5
sketch11.addConstraint([
    Sketcher.Constraint("Vertical", 2),
    Sketcher.Constraint("Vertical", 5),
    Sketcher.Constraint("Symmetric", 0, 2, 3, 2, -1),
    Sketcher.Constraint("Parallel", 0, 3),
    Sketcher.Constraint("Parallel", 1, 4),
    Sketcher.Constraint("Horizontal", 2, 2, 4, 2),
    Sketcher.Constraint("Horizontal", 1, 2, 5, 2),
    Sketcher.Constraint("Angle", 0, Q("150 deg")),
    Sketcher.Constraint("DistanceX", -1, 1, 1, 2, Q("34 mm")),
    Sketcher.Constraint("DistanceX", -1, 1, 4, 2, Q("56.5 mm")),
    Sketcher.Constraint("DistanceY", 2, 2, 2, 1, Q("12.990381 mm")),
])
pocket7 = body.newObject("PartDesign::Pocket", "Pocket006")
pocket7.Profile = sketch11
pocket7.Length = 1.5

# Sketch on XZ plane
sketch12 = body.newObject("Sketcher::SketchObject", "Sketch011")
sketch12.AttachmentSupport = (doc.getObject("XZ_Plane"), [""])
sketch12.MapMode = "FlatFace"
sketch12.AttachmentOffset = App.Placement(App.Vector(0, 0, -6), App.Rotation())
sketch12.addGeometry([
    Part.LineSegment(App.Vector(-3.5, -5.5, 0), App.Vector(-3.5, 5.5, 0)),
    Part.ArcOfCircle(Part.Circle(App.Vector(0, 5.5, 0), App.Vector(0, 0, 1), 3.5), math.radians(0), math.radians(180)),
    Part.LineSegment(App.Vector(3.5, 5.5, 0), App.Vector(3.5, -5.5, 0)),
    Part.ArcOfCircle(Part.Circle(App.Vector(0, -5.5, 0), App.Vector(0, 0, 1), 3.5), math.radians(180), math.radians(360)),
], False)
sketch12.addConstraint([
    Sketcher.Constraint("Tangent", 0, 2, 1, 2),
    Sketcher.Constraint("Tangent", 1, 1, 2, 1),
    Sketcher.Constraint("Tangent", 2, 2, 3, 2),
    Sketcher.Constraint("Tangent", 3, 1, 0, 1),
    Sketcher.Constraint("Vertical", 0),
    Sketcher.Constraint("Vertical", 2),
    Sketcher.Constraint("Symmetric", 1, 3, 3, 3, -1, 1),
    Sketcher.Constraint("Radius", 1, Q("3.5 mm")),
    Sketcher.Constraint("DistanceY", 0, 1, 0, 2, Q("11 mm")),
])
pocket8 = body.newObject("PartDesign::Pocket", "Pocket007")
pocket8.Profile = sketch12
pocket8.Length = 10
pocket8.Reversed = True
body2 = doc.addObject("PartDesign::Body", "Body001")

# Sketch on XY plane
sketch13 = body2.newObject("Sketcher::SketchObject", "Sketch012")
sketch13.AttachmentSupport = (doc.getObject("XY_Plane001"), [""])
sketch13.MapMode = "FlatFace"
sketch13.AttachmentOffset = App.Placement(App.Vector(0, 0, -45), App.Rotation())
add_polygon(sketch13, [(40, 60), (36.5, 60), (36.5, 64.5), (32, 64.5), (32, 68), (40, 68)])  # lines 0-5
sketch13.addConstraint([
    Sketcher.Constraint("Horizontal", 0),
    Sketcher.Constraint("Vertical", 1),
    Sketcher.Constraint("Horizontal", 2),
    Sketcher.Constraint("Vertical", 3),
    Sketcher.Constraint("Horizontal", 4),
    Sketcher.Constraint("Vertical", 5),
    Sketcher.Constraint("Equal", 2, 1),
    Sketcher.Constraint("Equal", 0, 3),
    Sketcher.Constraint("DistanceX", 4, 1, 4, 2, Q("8 mm")),
    Sketcher.Constraint("DistanceX", 0, 2, 0, 1, Q("3.5 mm")),
    Sketcher.Constraint("DistanceY", -1, 1, 0, 2, Q("60 mm")),
    Sketcher.Constraint("DistanceX", -1, 1, 2, 2, Q("32 mm")),
])
pad5 = body2.newObject("PartDesign::Pad", "Pad004")
pad5.Profile = sketch13
pad5.Length = 90
body3 = doc.addObject("PartDesign::Body", "Body002")

# Sketch on XY plane
sketch14 = body3.newObject("Sketcher::SketchObject", "Sketch013")
sketch14.AttachmentSupport = (doc.getObject("XY_Plane002"), [""])
sketch14.MapMode = "FlatFace"
sketch14.AttachmentOffset = App.Placement(App.Vector(0, 0, -45), App.Rotation())
add_polygon(sketch14, [(-36.5, 60), (-40, 60), (-40, 68), (-32, 68), (-32, 64.5), (-36.5, 64.5)])  # lines 0-5
sketch14.addConstraint([
    Sketcher.Constraint("Horizontal", 0),
    Sketcher.Constraint("Vertical", 1),
    Sketcher.Constraint("Horizontal", 2),
    Sketcher.Constraint("Vertical", 3),
    Sketcher.Constraint("Horizontal", 4),
    Sketcher.Constraint("Vertical", 5),
    Sketcher.Constraint("Equal", 2, 1),
    Sketcher.Constraint("Equal", 0, 3),
    Sketcher.Constraint("DistanceX", 2, 1, 2, 2, Q("8 mm")),
    Sketcher.Constraint("DistanceX", 0, 2, 0, 1, Q("3.5 mm")),
    Sketcher.Constraint("DistanceX", 0, 2, -1, 1, Q("40 mm")),
    Sketcher.Constraint("DistanceY", -1, 1, 0, 2, Q("60 mm")),
])
pad6 = body3.newObject("PartDesign::Pad", "Pad005")
pad6.Profile = sketch14
pad6.Length = 90
doc.recompute()

boolean = body.newObject("PartDesign::Boolean", "Boolean")
boolean.Type = "Fuse"
boolean.addObjects([body2])

# Sketch on YZ plane
sketch15 = body.newObject("Sketcher::SketchObject", "Sketch014")
sketch15.AttachmentSupport = (doc.getObject("YZ_Plane"), [""])
sketch15.MapMode = "FlatFace"
sketch15.AttachmentOffset = App.Placement(App.Vector(0, 0, 40), App.Rotation())
add_polygon(sketch15, [(68, 45), (60, 45), (60, 41.5), (68, 41.5)])  # lines 0-3
sketch15.addConstraint([
    Sketcher.Constraint("Horizontal", 0),
    Sketcher.Constraint("Vertical", 1),
    Sketcher.Constraint("Horizontal", 2),
    Sketcher.Constraint("Vertical", 3),
    Sketcher.Constraint("DistanceX", 0, 2, 0, 1, Q("8 mm")),
    Sketcher.Constraint("DistanceY", 1, 2, 1, 1, Q("3.5 mm")),
    Sketcher.Constraint("DistanceX", -1, 1, 0, 2, Q("60 mm")),
    Sketcher.Constraint("DistanceY", -1, 1, 0, 2, Q("45 mm")),
])
pad7 = body.newObject("PartDesign::Pad", "Pad006")
pad7.Profile = sketch15
pad7.Length = 80
pad7.Reversed = True
doc.recompute()

boolean2 = body.newObject("PartDesign::Boolean", "Boolean001")
boolean2.Type = "Fuse"
boolean2.addObjects([body3])

# Sketch on XY plane
sketch16 = body.newObject("Sketcher::SketchObject", "Sketch015")
sketch16.AttachmentSupport = (doc.getObject("XY_Plane"), [""])
sketch16.MapMode = "FlatFace"
sketch16.AttachmentOffset = App.Placement(App.Vector(0, 0, 41.5), App.Rotation())
add_polygon(sketch16, [(40, 68), (40, 64.5), (-40, 64.5), (-40, 68)])  # lines 0-3
sketch16.addConstraint([
    Sketcher.Constraint("Vertical", 0),
    Sketcher.Constraint("Horizontal", 1),
    Sketcher.Constraint("Vertical", 2),
    Sketcher.Constraint("Horizontal", 3),
    Sketcher.Constraint("DistanceX", 1, 2, 1, 1, Q("80 mm")),
    Sketcher.Constraint("DistanceY", 0, 2, 0, 1, Q("3.5 mm")),
    Sketcher.Constraint("DistanceX", -1, 1, 0, 2, Q("40 mm")),
    Sketcher.Constraint("DistanceY", -1, 1, 2, 2, Q("68 mm")),
])
pad8 = body.newObject("PartDesign::Pad", "Pad007")
pad8.Profile = sketch16
pad8.Length = 4.5
pad8.Reversed = True

# Sketch on XY plane
sketch17 = body.newObject("Sketcher::SketchObject", "Sketch016")
sketch17.AttachmentSupport = (doc.getObject("XY_Plane"), [""])
sketch17.MapMode = "FlatFace"
sketch17.AttachmentOffset = App.Placement(App.Vector(0, 0, 45), App.Rotation())
add_polygon(sketch17, [(-40, 60), (-40, 56.5), (-32, 56.5), (-32, 60)])  # lines 0-3
add_polygon(sketch17, [(32, 60), (32, 56.5), (40, 56.5), (40, 60)])  # lines 4-7
sketch17.addConstraint([
    Sketcher.Constraint("Vertical", 0),
    Sketcher.Constraint("Horizontal", 1),
    Sketcher.Constraint("Vertical", 2),
    Sketcher.Constraint("Horizontal", 3),
    Sketcher.Constraint("Vertical", 4),
    Sketcher.Constraint("Horizontal", 5),
    Sketcher.Constraint("Vertical", 6),
    Sketcher.Constraint("Horizontal", 7),
    Sketcher.Constraint("Symmetric", 1, 2, 4, 2, -2),
    Sketcher.Constraint("Symmetric", 3, 2, 6, 2, -2),
    Sketcher.Constraint("DistanceX", 1, 1, 1, 2, Q("8 mm")),
    Sketcher.Constraint("DistanceY", 0, 2, 0, 1, Q("3.5 mm")),
    Sketcher.Constraint("DistanceX", 0, 2, -1, 1, Q("40 mm")),
    Sketcher.Constraint("DistanceY", -1, 1, 2, 2, Q("60 mm")),
])
pad9 = body.newObject("PartDesign::Pad", "Pad008")
pad9.Profile = sketch17
pad9.Length = 90
pad9.Reversed = True

doc.recompute()
